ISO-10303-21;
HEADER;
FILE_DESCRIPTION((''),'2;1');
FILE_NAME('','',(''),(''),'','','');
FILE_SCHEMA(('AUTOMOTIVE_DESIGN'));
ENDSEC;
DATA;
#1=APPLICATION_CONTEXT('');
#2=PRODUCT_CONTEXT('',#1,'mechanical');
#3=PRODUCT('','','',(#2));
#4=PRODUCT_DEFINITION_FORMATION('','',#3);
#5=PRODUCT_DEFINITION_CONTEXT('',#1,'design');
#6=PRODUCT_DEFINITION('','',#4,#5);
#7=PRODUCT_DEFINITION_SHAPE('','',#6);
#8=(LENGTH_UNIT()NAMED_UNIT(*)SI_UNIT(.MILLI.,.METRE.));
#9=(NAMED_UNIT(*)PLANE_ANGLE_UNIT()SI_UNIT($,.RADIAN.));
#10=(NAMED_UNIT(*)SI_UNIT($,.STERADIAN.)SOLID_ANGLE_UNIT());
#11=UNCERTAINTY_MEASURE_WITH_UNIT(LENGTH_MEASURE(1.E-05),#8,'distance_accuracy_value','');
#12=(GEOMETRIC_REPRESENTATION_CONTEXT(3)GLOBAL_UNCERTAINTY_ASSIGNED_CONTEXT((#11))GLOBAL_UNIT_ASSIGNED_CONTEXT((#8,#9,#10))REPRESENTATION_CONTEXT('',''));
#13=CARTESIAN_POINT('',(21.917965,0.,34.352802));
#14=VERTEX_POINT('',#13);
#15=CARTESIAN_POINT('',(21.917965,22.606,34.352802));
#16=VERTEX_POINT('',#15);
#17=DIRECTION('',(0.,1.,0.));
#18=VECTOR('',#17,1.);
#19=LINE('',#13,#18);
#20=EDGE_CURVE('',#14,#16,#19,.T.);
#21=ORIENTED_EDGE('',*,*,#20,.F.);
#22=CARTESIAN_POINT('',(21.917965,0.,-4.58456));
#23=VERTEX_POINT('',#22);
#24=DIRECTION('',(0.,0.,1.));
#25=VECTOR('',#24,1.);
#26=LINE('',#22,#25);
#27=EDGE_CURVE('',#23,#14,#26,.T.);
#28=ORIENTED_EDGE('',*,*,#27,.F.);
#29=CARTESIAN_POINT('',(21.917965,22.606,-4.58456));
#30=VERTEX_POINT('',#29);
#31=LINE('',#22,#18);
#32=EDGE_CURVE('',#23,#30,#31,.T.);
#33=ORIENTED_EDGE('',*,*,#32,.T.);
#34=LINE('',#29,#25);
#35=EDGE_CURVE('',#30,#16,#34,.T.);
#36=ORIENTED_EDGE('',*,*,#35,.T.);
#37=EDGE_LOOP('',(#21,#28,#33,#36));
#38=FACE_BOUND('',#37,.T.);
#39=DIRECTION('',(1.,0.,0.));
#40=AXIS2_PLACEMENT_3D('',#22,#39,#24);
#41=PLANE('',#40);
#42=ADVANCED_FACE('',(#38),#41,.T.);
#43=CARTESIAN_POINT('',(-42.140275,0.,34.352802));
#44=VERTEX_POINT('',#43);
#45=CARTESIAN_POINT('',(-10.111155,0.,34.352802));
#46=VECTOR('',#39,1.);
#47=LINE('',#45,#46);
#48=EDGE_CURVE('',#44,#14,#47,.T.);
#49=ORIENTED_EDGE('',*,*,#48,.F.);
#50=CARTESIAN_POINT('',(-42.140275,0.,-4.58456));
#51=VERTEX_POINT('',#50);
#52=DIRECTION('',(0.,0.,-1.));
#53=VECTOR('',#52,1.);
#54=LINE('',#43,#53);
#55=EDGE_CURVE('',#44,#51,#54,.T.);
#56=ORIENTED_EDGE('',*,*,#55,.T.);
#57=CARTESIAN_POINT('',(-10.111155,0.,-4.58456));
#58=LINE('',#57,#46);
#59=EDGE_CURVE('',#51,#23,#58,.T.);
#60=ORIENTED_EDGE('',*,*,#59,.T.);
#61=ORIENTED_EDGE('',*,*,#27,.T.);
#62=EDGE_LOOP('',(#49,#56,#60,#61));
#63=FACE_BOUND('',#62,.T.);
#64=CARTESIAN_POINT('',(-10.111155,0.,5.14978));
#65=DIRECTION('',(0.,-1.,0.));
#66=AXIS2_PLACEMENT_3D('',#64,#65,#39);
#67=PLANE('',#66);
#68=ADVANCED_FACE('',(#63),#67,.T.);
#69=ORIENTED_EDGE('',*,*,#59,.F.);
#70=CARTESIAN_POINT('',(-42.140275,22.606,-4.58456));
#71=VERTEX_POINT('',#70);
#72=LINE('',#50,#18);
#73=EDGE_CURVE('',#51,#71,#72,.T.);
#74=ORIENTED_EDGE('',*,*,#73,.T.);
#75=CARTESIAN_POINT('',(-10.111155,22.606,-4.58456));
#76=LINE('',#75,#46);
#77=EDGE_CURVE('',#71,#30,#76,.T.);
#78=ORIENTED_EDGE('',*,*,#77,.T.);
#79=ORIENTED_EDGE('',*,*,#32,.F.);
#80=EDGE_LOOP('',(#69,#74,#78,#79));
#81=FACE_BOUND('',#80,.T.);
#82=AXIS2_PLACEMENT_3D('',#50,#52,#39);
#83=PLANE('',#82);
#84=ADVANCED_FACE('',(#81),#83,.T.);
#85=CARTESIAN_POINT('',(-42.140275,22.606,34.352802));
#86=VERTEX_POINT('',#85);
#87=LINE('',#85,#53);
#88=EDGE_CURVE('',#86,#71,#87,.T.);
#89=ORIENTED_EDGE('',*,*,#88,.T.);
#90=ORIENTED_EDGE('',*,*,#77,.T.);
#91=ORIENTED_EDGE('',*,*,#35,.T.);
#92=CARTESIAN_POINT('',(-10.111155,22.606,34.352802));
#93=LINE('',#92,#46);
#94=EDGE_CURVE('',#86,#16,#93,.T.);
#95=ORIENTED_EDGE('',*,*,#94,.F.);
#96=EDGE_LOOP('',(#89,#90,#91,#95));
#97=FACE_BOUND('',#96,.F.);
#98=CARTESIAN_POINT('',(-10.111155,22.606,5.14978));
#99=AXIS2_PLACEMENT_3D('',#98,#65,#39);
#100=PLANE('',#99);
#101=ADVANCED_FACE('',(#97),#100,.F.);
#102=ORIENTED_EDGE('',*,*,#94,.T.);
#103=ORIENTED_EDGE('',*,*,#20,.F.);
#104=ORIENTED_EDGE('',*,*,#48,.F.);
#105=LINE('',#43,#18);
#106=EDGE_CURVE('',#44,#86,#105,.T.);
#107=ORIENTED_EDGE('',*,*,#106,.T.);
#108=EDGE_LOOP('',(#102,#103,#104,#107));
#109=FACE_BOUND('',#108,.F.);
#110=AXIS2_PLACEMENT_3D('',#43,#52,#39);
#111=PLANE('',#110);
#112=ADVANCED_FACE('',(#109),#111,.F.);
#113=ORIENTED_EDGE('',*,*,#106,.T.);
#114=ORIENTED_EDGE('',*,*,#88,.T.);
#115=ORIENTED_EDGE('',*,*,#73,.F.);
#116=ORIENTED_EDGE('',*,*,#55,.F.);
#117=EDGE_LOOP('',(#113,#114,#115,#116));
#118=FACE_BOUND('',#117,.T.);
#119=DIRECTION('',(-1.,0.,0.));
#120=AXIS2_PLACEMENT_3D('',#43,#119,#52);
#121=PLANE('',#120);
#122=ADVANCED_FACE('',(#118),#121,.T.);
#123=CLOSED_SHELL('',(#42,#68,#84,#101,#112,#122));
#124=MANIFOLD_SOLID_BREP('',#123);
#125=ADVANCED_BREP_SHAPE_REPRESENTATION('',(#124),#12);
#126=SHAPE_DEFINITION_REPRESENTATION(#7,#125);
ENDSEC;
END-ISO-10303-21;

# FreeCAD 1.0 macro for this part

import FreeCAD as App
import Part
import Sketcher

V = App.Vector
Q = App.Units.Quantity

doc = App.newDocument("Part")
body = doc.addObject("PartDesign::Body", "Body")

sketch1 = doc.addObject("Sketcher::SketchObject", "Sketch")
body.addObject(sketch1)
sketch1.AttachmentSupport = (doc.XZ_Plane, [""])
sketch1.MapMode = "FlatFace"
sketch1.addGeometry(Part.LineSegment(V(-42, -5, 0), V(22, -5, 0)), False)
sketch1.addGeometry(Part.LineSegment(V(22, -5, 0), V(22, 34, 0)), False)
sketch1.addGeometry(Part.LineSegment(V(22, 34, 0), V(-42, 34, 0)), False)
sketch1.addGeometry(Part.LineSegment(V(-42, 34, 0), V(-42, -5, 0)), False)
sketch1.addConstraint(Sketcher.Constraint("Coincident", 0, 2, 1, 1))
sketch1.addConstraint(Sketcher.Constraint("Coincident", 1, 2, 2, 1))
sketch1.addConstraint(Sketcher.Constraint("Coincident", 2, 2, 3, 1))
sketch1.addConstraint(Sketcher.Constraint("Coincident", 3, 2, 0, 1))
sketch1.addConstraint(Sketcher.Constraint("Horizontal", 0))
sketch1.addConstraint(Sketcher.Constraint("Vertical", 1))
sketch1.addConstraint(Sketcher.Constraint("Horizontal", 2))
sketch1.addConstraint(Sketcher.Constraint("Vertical", 3))
sketch1.addConstraint(Sketcher.Constraint("DistanceX", 0, 1, 0, 2, Q("64.058241 mm")))
sketch1.addConstraint(Sketcher.Constraint("DistanceY", 1, 1, 1, 2, Q("38.937362 mm")))
sketch1.addConstraint(Sketcher.Constraint("DistanceY", -1, 1, 1, 2, Q("34.352802 mm")))
sketch1.addConstraint(Sketcher.Constraint("DistanceX", -1, 1, 0, 2, Q("21.917965 mm")))
pad1 = doc.addObject("PartDesign::Pad", "Pad")
body.addObject(pad1)
pad1.Profile = sketch1
pad1.Length = Q("0.89 in")
pad1.Reversed = True

doc.recompute()
